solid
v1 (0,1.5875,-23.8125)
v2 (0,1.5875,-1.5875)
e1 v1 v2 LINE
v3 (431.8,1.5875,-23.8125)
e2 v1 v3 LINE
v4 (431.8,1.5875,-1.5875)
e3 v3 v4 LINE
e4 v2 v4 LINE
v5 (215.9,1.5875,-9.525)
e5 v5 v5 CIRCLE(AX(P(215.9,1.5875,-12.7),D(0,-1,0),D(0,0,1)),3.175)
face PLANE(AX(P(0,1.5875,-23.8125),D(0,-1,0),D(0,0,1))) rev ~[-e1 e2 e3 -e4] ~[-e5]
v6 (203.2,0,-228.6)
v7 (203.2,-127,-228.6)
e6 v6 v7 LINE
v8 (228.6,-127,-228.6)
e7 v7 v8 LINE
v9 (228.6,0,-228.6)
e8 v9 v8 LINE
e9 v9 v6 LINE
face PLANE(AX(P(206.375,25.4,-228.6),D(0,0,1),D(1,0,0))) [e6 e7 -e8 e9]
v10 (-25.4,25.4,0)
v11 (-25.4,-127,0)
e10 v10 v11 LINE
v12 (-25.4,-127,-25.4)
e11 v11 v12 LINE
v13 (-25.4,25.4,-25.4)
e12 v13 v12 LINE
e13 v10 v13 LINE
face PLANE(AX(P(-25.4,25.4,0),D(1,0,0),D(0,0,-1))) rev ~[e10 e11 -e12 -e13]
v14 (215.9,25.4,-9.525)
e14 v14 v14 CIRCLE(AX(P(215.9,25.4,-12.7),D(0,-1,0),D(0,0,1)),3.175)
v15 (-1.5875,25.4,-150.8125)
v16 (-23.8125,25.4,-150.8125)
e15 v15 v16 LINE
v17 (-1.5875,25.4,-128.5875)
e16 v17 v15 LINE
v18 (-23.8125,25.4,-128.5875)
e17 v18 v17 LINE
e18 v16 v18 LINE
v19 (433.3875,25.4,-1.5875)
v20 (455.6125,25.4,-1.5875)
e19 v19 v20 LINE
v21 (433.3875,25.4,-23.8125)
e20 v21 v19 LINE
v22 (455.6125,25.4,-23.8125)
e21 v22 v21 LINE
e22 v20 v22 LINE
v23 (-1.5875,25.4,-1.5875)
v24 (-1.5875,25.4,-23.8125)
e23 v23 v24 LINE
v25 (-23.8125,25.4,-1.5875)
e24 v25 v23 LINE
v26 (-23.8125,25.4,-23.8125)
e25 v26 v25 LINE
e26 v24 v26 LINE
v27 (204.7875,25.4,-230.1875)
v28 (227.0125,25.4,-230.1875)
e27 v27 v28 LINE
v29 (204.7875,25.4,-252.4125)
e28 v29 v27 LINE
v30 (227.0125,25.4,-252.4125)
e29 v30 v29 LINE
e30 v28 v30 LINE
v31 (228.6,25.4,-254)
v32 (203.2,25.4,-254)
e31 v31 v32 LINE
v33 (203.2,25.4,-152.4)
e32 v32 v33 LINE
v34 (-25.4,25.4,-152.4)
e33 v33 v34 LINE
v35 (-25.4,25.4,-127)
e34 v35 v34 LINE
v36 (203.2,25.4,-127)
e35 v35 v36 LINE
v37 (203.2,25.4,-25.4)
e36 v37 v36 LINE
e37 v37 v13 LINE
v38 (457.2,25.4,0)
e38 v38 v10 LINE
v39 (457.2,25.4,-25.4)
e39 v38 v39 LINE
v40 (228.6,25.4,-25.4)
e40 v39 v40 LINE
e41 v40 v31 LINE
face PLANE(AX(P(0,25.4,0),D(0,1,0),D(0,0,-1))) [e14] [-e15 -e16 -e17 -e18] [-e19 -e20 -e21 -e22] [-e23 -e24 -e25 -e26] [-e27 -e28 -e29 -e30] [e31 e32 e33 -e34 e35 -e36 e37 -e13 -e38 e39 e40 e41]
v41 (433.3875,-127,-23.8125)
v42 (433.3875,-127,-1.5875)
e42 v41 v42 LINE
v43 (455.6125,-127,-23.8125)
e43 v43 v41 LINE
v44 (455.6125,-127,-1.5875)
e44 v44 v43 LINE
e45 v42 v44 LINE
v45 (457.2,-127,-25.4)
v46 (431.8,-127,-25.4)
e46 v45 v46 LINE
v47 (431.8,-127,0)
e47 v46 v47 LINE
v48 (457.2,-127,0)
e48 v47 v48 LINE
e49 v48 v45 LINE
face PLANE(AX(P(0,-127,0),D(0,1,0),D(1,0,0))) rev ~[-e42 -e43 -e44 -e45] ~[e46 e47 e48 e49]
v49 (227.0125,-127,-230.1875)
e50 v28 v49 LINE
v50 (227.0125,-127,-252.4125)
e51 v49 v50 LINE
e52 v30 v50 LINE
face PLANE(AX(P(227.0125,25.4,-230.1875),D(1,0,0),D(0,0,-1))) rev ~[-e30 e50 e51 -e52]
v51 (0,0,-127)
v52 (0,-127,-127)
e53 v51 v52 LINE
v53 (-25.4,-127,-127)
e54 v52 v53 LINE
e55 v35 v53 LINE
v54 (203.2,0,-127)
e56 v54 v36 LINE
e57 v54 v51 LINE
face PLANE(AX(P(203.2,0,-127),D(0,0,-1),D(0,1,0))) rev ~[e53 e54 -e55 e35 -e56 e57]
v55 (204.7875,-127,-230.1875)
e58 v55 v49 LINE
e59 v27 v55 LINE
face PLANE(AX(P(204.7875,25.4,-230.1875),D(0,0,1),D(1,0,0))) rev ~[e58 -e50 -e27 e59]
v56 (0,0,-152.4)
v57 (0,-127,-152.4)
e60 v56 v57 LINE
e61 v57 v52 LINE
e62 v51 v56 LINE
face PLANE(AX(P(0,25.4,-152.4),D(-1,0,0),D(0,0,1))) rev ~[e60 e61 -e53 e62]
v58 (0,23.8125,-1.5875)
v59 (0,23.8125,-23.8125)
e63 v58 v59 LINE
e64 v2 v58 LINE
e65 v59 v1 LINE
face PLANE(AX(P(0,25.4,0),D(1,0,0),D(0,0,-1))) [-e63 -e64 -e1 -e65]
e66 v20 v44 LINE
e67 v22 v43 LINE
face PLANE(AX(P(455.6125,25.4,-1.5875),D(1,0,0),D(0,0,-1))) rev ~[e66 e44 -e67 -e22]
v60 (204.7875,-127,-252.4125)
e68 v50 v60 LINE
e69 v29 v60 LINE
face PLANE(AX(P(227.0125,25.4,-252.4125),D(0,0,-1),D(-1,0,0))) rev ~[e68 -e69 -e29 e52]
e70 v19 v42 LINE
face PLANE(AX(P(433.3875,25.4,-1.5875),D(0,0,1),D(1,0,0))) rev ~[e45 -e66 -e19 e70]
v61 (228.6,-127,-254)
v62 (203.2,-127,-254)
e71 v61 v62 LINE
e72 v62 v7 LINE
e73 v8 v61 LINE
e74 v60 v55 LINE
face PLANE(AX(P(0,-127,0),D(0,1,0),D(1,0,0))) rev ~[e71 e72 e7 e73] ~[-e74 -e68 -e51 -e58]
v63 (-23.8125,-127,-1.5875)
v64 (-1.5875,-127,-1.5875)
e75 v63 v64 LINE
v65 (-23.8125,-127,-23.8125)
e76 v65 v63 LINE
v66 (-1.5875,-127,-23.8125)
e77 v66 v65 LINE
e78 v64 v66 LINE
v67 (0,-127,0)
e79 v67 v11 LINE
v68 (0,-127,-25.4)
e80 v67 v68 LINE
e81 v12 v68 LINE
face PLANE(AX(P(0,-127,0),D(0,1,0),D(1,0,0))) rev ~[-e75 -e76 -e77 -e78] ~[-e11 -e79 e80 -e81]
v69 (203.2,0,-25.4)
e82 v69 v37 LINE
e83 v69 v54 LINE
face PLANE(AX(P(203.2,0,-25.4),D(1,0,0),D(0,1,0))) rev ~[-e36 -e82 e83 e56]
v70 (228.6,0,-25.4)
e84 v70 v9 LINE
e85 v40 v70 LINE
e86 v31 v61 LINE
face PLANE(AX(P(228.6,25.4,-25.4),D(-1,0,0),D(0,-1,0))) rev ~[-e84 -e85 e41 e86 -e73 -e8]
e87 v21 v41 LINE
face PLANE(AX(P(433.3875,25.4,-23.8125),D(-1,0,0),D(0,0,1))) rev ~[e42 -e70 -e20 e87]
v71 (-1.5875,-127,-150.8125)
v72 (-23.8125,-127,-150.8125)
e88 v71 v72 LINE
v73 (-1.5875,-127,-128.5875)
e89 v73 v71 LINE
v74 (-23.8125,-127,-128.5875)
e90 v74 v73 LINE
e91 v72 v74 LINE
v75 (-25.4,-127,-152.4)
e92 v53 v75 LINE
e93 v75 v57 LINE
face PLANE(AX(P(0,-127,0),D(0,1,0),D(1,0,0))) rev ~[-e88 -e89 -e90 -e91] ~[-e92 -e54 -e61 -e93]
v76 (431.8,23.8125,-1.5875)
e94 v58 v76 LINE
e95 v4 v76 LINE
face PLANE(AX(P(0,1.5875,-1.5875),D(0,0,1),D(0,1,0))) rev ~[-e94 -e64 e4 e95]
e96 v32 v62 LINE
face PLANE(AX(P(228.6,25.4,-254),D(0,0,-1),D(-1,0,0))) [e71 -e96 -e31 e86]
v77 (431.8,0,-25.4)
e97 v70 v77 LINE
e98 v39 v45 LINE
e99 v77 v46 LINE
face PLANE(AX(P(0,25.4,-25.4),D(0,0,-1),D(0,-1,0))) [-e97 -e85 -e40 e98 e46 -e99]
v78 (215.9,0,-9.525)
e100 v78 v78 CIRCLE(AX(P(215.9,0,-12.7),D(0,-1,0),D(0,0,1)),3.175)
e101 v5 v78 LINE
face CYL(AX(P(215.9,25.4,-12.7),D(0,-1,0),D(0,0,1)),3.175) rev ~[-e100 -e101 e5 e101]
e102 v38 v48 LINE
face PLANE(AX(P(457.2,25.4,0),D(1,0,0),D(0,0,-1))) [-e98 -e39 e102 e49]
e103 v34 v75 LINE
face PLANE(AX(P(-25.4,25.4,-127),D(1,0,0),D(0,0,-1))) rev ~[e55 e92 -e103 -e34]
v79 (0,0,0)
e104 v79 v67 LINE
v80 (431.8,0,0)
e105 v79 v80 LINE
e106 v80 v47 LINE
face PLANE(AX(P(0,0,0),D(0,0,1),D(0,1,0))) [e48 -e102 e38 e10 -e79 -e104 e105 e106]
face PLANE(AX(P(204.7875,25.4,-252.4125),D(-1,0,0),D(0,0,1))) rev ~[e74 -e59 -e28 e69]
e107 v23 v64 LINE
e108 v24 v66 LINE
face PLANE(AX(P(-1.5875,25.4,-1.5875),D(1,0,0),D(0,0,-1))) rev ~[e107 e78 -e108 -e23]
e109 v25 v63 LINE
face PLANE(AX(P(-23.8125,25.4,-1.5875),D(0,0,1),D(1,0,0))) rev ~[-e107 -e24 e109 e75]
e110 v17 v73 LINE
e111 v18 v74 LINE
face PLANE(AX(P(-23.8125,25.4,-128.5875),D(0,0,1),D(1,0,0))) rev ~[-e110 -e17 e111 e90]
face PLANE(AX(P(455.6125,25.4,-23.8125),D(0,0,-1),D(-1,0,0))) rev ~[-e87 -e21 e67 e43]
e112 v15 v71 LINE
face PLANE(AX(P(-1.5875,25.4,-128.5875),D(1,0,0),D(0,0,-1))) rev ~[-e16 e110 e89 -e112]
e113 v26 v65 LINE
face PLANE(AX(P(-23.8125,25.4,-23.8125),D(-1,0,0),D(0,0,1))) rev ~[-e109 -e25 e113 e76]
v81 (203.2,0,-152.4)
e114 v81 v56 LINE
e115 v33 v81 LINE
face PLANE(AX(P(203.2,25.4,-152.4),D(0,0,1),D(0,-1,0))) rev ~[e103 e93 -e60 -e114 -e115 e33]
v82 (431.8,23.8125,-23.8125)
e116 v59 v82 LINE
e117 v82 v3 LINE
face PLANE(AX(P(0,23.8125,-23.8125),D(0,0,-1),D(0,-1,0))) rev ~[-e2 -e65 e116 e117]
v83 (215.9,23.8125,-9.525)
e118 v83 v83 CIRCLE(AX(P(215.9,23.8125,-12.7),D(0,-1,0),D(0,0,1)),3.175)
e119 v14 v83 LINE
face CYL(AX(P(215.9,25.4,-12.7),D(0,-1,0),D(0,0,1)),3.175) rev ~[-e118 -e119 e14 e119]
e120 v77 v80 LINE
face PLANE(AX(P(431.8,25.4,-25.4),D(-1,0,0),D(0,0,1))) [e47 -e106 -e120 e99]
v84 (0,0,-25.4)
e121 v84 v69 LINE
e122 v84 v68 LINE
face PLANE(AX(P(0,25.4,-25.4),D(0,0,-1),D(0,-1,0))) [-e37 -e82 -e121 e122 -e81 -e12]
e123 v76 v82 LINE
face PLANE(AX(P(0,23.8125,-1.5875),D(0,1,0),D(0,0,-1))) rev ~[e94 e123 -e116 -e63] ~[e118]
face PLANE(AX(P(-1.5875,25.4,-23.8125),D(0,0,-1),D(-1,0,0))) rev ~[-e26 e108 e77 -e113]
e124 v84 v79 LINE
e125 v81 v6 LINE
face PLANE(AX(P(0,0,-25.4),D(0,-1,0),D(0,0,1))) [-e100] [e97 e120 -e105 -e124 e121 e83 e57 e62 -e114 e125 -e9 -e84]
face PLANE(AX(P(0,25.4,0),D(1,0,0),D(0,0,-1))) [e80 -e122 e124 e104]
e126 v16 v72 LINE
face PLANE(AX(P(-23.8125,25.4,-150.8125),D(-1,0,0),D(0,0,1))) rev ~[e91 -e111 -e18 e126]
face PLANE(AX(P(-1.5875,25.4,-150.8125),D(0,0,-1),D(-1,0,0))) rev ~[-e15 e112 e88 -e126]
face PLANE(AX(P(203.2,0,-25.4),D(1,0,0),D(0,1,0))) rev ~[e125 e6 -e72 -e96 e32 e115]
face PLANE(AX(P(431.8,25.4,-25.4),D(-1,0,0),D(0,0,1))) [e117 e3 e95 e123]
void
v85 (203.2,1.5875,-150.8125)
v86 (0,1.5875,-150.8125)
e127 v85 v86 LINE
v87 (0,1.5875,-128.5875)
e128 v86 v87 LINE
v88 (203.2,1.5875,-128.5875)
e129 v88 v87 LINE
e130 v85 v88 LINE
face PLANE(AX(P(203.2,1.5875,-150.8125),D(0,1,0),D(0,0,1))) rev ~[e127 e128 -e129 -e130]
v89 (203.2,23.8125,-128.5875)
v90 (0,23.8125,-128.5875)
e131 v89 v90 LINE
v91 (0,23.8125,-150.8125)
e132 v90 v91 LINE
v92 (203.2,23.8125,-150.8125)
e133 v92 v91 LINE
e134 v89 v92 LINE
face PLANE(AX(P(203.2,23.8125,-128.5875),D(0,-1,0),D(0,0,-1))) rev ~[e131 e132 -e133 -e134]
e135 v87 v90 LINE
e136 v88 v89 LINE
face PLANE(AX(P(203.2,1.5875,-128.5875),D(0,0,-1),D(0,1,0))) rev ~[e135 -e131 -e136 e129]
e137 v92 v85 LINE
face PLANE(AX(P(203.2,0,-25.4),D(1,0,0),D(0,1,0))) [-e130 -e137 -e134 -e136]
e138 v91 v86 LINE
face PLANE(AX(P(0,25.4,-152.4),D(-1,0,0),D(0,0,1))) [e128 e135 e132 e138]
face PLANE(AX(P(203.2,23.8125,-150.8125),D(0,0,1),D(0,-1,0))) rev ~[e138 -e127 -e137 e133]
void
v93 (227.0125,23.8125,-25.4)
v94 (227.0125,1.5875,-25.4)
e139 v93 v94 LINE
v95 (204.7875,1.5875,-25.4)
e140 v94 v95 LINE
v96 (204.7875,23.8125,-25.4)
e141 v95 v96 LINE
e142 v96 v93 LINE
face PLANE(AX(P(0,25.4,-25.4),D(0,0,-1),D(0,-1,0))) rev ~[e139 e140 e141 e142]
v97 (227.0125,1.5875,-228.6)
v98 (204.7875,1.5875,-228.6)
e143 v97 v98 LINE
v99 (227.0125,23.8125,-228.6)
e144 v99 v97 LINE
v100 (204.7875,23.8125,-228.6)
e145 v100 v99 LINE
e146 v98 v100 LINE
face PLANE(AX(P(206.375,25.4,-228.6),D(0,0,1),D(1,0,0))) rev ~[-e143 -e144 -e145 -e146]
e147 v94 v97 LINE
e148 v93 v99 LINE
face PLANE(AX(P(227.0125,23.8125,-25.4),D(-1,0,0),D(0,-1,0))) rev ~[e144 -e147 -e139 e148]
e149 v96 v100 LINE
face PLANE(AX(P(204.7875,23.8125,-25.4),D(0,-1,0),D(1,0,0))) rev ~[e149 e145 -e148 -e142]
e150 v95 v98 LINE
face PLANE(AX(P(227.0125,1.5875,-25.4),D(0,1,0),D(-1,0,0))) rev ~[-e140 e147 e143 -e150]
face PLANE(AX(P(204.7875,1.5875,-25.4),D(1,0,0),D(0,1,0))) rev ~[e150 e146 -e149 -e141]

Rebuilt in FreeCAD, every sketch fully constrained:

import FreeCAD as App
import Part
import Sketcher
from FreeCAD import Vector
Q = App.Units.Quantity


def add_polygon(sketch, points):
    """Adds a closed chain of lines whose ends are joined by coincident constraints."""
    first, n = sketch.GeometryCount, len(points)
    for a, b in zip(points, points[1:] + points[:1]):
        sketch.addGeometry(Part.LineSegment(App.Vector(*a, 0), App.Vector(*b, 0)), False)
    for i in range(n):
        sketch.addConstraint(Sketcher.Constraint("Coincident", first + i, 2, first + (i + 1) % n, 1))

doc = App.newDocument("Part")
body = doc.addObject("PartDesign::Body", "Body")

# Sketch on YZ plane
sketch1 = body.newObject("Sketcher::SketchObject", "Sketch")
sketch1.AttachmentSupport = (doc.getObject("YZ_Plane"), [""])
sketch1.MapMode = "FlatFace"
add_polygon(sketch1, [(25, 0), (0, 0), (0, -25), (25, -25)])  # lines 0-3
add_polygon(sketch1, [(2, -24), (2, -2), (24, -2), (24, -24)])  # lines 4-7
sketch1.addConstraint(Sketcher.Constraint("Horizontal", 0))
sketch1.addConstraint(Sketcher.Constraint("Vertical", 1))
sketch1.addConstraint(Sketcher.Constraint("Horizontal", 2))
sketch1.addConstraint(Sketcher.Constraint("Vertical", 3))
sketch1.addConstraint(Sketcher.Constraint("Vertical", 4))
sketch1.addConstraint(Sketcher.Constraint("Horizontal", 5))
sketch1.addConstraint(Sketcher.Constraint("Vertical", 6))
sketch1.addConstraint(Sketcher.Constraint("Horizontal", 7))
sketch1.addConstraint(Sketcher.Constraint("Coincident", 0, 2, -1, 1))
sketch1.addConstraint(Sketcher.Constraint("Equal", 2, 1))
sketch1.addConstraint(Sketcher.Constraint("Equal", 7, 4))
sketch1.addConstraint(Sketcher.Constraint("DistanceX", 0, 2, 0, 1, Q("1 in")))
sketch1.addConstraint(Sketcher.Constraint("DistanceX", -1, 1, 4, 2, Q("0.0625 in")))
sketch1.addConstraint(Sketcher.Constraint("DistanceY", 4, 2, -1, 1, Q("0.0625 in")))
sketch1.addConstraint(Sketcher.Constraint("DistanceX", 5, 2, 3, 2, Q("0.0625 in")))
pad1 = body.newObject("PartDesign::Pad", "Pad")
pad1.Profile = sketch1
pad1.Length = Q("17 in")

# Sketch on XY plane
sketch2 = body.newObject("Sketcher::SketchObject", "Sketch001")
sketch2.AttachmentSupport = (doc.getObject("XY_Plane"), [""])
sketch2.MapMode = "FlatFace"
sketch2.AttachmentOffset = App.Placement(Vector(0, 0, -1 * 25.4), App.Rotation())
add_polygon(sketch2, [(203, 0), (203, 25), (229, 25), (229, 0)])  # lines 0-3
add_polygon(sketch2, [(205, 2), (227, 2), (227, 24), (205, 24)])  # lines 4-7
sketch2.addConstraint(Sketcher.Constraint("Vertical", 0))
sketch2.addConstraint(Sketcher.Constraint("Horizontal", 1))
sketch2.addConstraint(Sketcher.Constraint("Vertical", 2))
sketch2.addConstraint(Sketcher.Constraint("Horizontal", 3))
sketch2.addConstraint(Sketcher.Constraint("Horizontal", 4))
sketch2.addConstraint(Sketcher.Constraint("Vertical", 5))
sketch2.addConstraint(Sketcher.Constraint("Horizontal", 6))
sketch2.addConstraint(Sketcher.Constraint("Vertical", 7))
sketch2.addConstraint(Sketcher.Constraint("PointOnObject", 2, 2, -1))
sketch2.addConstraint(Sketcher.Constraint("Equal", 3, 0))
sketch2.addConstraint(Sketcher.Constraint("Equal", 6, 5))
sketch2.addConstraint(Sketcher.Constraint("DistanceX", 1, 1, 1, 2, Q("1 in")))
sketch2.addConstraint(Sketcher.Constraint("DistanceY", -1, 1, 4, 2, Q("0.0625 in")))
sketch2.addConstraint(Sketcher.Constraint("DistanceX", -1, 1, 0, 2, Q("8 in")))
sketch2.addConstraint(Sketcher.Constraint("DistanceX", 4, 2, 2, 2, Q("0.0625 in")))
sketch2.addConstraint(Sketcher.Constraint("DistanceY", 5, 2, 1, 2, Q("0.0625 in")))
pad2 = body.newObject("PartDesign::Pad", "Pad001")
pad2.Profile = sketch2
pad2.Length = Q("8 in")
pad2.Reversed = True

# Sketch on YZ plane
sketch3 = body.newObject("Sketcher::SketchObject", "Sketch002")
sketch3.AttachmentSupport = (doc.getObject("YZ_Plane"), [""])
sketch3.MapMode = "FlatFace"
sketch3.AttachmentOffset = App.Placement(Vector(0, 0, 8 * 25.4), App.Rotation())
add_polygon(sketch3, [(0, -127), (25, -127), (25, -152), (0, -152)])  # lines 0-3
add_polygon(sketch3, [(2, -129), (2, -151), (24, -151), (24, -129)])  # lines 4-7
sketch3.addConstraint(Sketcher.Constraint("Horizontal", 0))
sketch3.addConstraint(Sketcher.Constraint("Vertical", 1))
sketch3.addConstraint(Sketcher.Constraint("Horizontal", 2))
sketch3.addConstraint(Sketcher.Constraint("Vertical", 3))
sketch3.addConstraint(Sketcher.Constraint("Vertical", 4))
sketch3.addConstraint(Sketcher.Constraint("Horizontal", 5))
sketch3.addConstraint(Sketcher.Constraint("Vertical", 6))
sketch3.addConstraint(Sketcher.Constraint("Horizontal", 7))
sketch3.addConstraint(Sketcher.Constraint("PointOnObject", 2, 2, -2))
sketch3.addConstraint(Sketcher.Constraint("Equal", 2, 1))
sketch3.addConstraint(Sketcher.Constraint("Equal", 7, 4))
sketch3.addConstraint(Sketcher.Constraint("DistanceX", 0, 1, 0, 2, Q("1 in")))
sketch3.addConstraint(Sketcher.Constraint("DistanceX", -1, 1, 4, 2, Q("0.0625 in")))
sketch3.addConstraint(Sketcher.Constraint("DistanceY", 0, 2, -1, 1, Q("5 in")))
sketch3.addConstraint(Sketcher.Constraint("DistanceY", 2, 2, 4, 2, Q("0.0625 in")))
sketch3.addConstraint(Sketcher.Constraint("DistanceX", 5, 2, 1, 2, Q("0.0625 in")))
pad3 = body.newObject("PartDesign::Pad", "Pad002")
pad3.Profile = sketch3
pad3.Length = Q("8 in")
pad3.Reversed = True

# Sketch on XZ plane
sketch4 = body.newObject("Sketcher::SketchObject", "Sketch003")
sketch4.AttachmentSupport = (doc.getObject("XZ_Plane"), [""])
sketch4.MapMode = "FlatFace"
sketch4.AttachmentOffset = App.Placement(Vector(0, 0, -1 * 25.4), App.Rotation())
add_polygon(sketch4, [(-25, 0), (0, 0), (0, -25), (-25, -25)])  # lines 0-3
add_polygon(sketch4, [(-2, -2), (-24, -2), (-24, -24), (-2, -24)])  # lines 4-7
add_polygon(sketch4, [(457, -25), (432, -25), (432, 0), (457, 0)])  # lines 8-11
add_polygon(sketch4, [(456, -2), (433, -2), (433, -24), (456, -24)])  # lines 12-15
add_polygon(sketch4, [(203, -254), (203, -229), (229, -229), (229, -254)])  # lines 16-19
add_polygon(sketch4, [(227, -230), (205, -230), (205, -252), (227, -252)])  # lines 20-23
add_polygon(sketch4, [(-25, -127), (0, -127), (0, -152), (-25, -152)])  # lines 24-27
add_polygon(sketch4, [(-2, -129), (-24, -129), (-24, -151), (-2, -151)])  # lines 28-31
sketch4.addConstraint(Sketcher.Constraint("Horizontal", 0))
sketch4.addConstraint(Sketcher.Constraint("Vertical", 1))
sketch4.addConstraint(Sketcher.Constraint("Horizontal", 2))
sketch4.addConstraint(Sketcher.Constraint("Vertical", 3))
sketch4.addConstraint(Sketcher.Constraint("Horizontal", 4))
sketch4.addConstraint(Sketcher.Constraint("Vertical", 5))
sketch4.addConstraint(Sketcher.Constraint("Horizontal", 6))
sketch4.addConstraint(Sketcher.Constraint("Vertical", 7))
sketch4.addConstraint(Sketcher.Constraint("Horizontal", 8))
sketch4.addConstraint(Sketcher.Constraint("Vertical", 9))
sketch4.addConstraint(Sketcher.Constraint("Horizontal", 10))
sketch4.addConstraint(Sketcher.Constraint("Vertical", 11))
sketch4.addConstraint(Sketcher.Constraint("Horizontal", 12))
sketch4.addConstraint(Sketcher.Constraint("Vertical", 13))
sketch4.addConstraint(Sketcher.Constraint("Horizontal", 14))
sketch4.addConstraint(Sketcher.Constraint("Vertical", 15))
sketch4.addConstraint(Sketcher.Constraint("Vertical", 16))
sketch4.addConstraint(Sketcher.Constraint("Horizontal", 17))
sketch4.addConstraint(Sketcher.Constraint("Vertical", 18))
sketch4.addConstraint(Sketcher.Constraint("Horizontal", 19))
sketch4.addConstraint(Sketcher.Constraint("Horizontal", 20))
sketch4.addConstraint(Sketcher.Constraint("Vertical", 21))
sketch4.addConstraint(Sketcher.Constraint("Horizontal", 22))
sketch4.addConstraint(Sketcher.Constraint("Vertical", 23))
sketch4.addConstraint(Sketcher.Constraint("Horizontal", 24))
sketch4.addConstraint(Sketcher.Constraint("Vertical", 25))
sketch4.addConstraint(Sketcher.Constraint("Horizontal", 26))
sketch4.addConstraint(Sketcher.Constraint("Vertical", 27))
sketch4.addConstraint(Sketcher.Constraint("Horizontal", 28))
sketch4.addConstraint(Sketcher.Constraint("Vertical", 29))
sketch4.addConstraint(Sketcher.Constraint("Horizontal", 30))
sketch4.addConstraint(Sketcher.Constraint("Vertical", 31))
sketch4.addConstraint(Sketcher.Constraint("Coincident", 0, 2, -1, 1))
sketch4.addConstraint(Sketcher.Constraint("PointOnObject", 9, 2, -1))
sketch4.addConstraint(Sketcher.Constraint("PointOnObject", 24, 2, -2))
sketch4.addConstraint(Sketcher.Constraint("Horizontal", 2, 2, 8, 2))
sketch4.addConstraint(Sketcher.Constraint("Horizontal", 7, 2, 12, 2))
sketch4.addConstraint(Sketcher.Constraint("Horizontal", 6, 2, 13, 2))
sketch4.addConstraint(Sketcher.Constraint("Vertical", 3, 2, 26, 2))
sketch4.addConstraint(Sketcher.Constraint("Vertical", 5, 2, 28, 2))
sketch4.addConstraint(Sketcher.Constraint("Vertical", 7, 2, 30, 2))
sketch4.addConstraint(Sketcher.Constraint("Equal", 2, 8))
sketch4.addConstraint(Sketcher.Constraint("Equal", 6, 12))
sketch4.addConstraint(Sketcher.Constraint("Equal", 10, 17))
sketch4.addConstraint(Sketcher.Constraint("Equal", 14, 20))
sketch4.addConstraint(Sketcher.Constraint("Equal", 26, 1))
sketch4.addConstraint(Sketcher.Constraint("Equal", 30, 5))
sketch4.addConstraint(Sketcher.Constraint("Equal", 11, 16))
sketch4.addConstraint(Sketcher.Constraint("Equal", 15, 21))
sketch4.addConstraint(Sketcher.Constraint("Equal", 18, 25))
sketch4.addConstraint(Sketcher.Constraint("Equal", 23, 29))
sketch4.addConstraint(Sketcher.Constraint("DistanceX", 0, 1, 0, 2, Q("1 in")))
sketch4.addConstraint(Sketcher.Constraint("DistanceY", 4, 2, -1, 1, Q("0.0625 in")))
sketch4.addConstraint(Sketcher.Constraint("DistanceX", 6, 2, -1, 1, Q("0.0625 in")))
sketch4.addConstraint(Sketcher.Constraint("DistanceX", -1, 1, 8, 2, Q("17 in")))
sketch4.addConstraint(Sketcher.Constraint("DistanceX", -1, 1, 16, 2, Q("8 in")))
sketch4.addConstraint(Sketcher.Constraint("DistanceY", 16, 2, -1, 1, Q("9 in")))
sketch4.addConstraint(Sketcher.Constraint("DistanceY", 24, 2, -1, 1, Q("5 in")))
sketch4.addConstraint(Sketcher.Constraint("DistanceX", 3, 2, 4, 2, Q("0.0625 in")))
sketch4.addConstraint(Sketcher.Constraint("DistanceX", 9, 2, 12, 2, Q("0.0625 in")))
sketch4.addConstraint(Sketcher.Constraint("DistanceX", 16, 2, 20, 2, Q("0.0625 in")))
sketch4.addConstraint(Sketcher.Constraint("DistanceY", 20, 2, 16, 2, Q("0.0625 in")))
sketch4.addConstraint(Sketcher.Constraint("DistanceY", 28, 2, 27, 2, Q("0.0625 in")))
pad4 = body.newObject("PartDesign::Pad", "Pad003")
pad4.Profile = sketch4
pad4.Length = Q("6 in")

# Sketch on XZ plane
sketch5 = body.newObject("Sketcher::SketchObject", "Sketch004")
sketch5.AttachmentSupport = (doc.getObject("XZ_Plane"), [""])
sketch5.MapMode = "FlatFace"
sketch5.AttachmentOffset = App.Placement(Vector(0, 0, -1 * 25.4), App.Rotation())
sketch5.addGeometry(Part.Circle(Vector(215.9, -12.7, 0), Vector(0, 0, 1), 3.2), False)
sketch5.addConstraint(Sketcher.Constraint("Diameter", 0, Q("0.25 in")))
sketch5.addConstraint(Sketcher.Constraint("DistanceX", -1, 1, 0, 3, Q("8.5 in")))
sketch5.addConstraint(Sketcher.Constraint("DistanceY", 0, 3, -1, 1, Q("0.5 in")))
doc.recompute()
hole = body.newObject("PartDesign::Hole", "Hole")
hole.Profile = sketch5
hole.ThreadType = "None"
hole.Diameter = Q("0.25 in")
hole.DepthType = "Dimension"
hole.Depth = Q("1 in")
hole.DrillPoint = "Angled"
hole.DrillPointAngle = 118
hole.Reversed = True

doc.recompute()
